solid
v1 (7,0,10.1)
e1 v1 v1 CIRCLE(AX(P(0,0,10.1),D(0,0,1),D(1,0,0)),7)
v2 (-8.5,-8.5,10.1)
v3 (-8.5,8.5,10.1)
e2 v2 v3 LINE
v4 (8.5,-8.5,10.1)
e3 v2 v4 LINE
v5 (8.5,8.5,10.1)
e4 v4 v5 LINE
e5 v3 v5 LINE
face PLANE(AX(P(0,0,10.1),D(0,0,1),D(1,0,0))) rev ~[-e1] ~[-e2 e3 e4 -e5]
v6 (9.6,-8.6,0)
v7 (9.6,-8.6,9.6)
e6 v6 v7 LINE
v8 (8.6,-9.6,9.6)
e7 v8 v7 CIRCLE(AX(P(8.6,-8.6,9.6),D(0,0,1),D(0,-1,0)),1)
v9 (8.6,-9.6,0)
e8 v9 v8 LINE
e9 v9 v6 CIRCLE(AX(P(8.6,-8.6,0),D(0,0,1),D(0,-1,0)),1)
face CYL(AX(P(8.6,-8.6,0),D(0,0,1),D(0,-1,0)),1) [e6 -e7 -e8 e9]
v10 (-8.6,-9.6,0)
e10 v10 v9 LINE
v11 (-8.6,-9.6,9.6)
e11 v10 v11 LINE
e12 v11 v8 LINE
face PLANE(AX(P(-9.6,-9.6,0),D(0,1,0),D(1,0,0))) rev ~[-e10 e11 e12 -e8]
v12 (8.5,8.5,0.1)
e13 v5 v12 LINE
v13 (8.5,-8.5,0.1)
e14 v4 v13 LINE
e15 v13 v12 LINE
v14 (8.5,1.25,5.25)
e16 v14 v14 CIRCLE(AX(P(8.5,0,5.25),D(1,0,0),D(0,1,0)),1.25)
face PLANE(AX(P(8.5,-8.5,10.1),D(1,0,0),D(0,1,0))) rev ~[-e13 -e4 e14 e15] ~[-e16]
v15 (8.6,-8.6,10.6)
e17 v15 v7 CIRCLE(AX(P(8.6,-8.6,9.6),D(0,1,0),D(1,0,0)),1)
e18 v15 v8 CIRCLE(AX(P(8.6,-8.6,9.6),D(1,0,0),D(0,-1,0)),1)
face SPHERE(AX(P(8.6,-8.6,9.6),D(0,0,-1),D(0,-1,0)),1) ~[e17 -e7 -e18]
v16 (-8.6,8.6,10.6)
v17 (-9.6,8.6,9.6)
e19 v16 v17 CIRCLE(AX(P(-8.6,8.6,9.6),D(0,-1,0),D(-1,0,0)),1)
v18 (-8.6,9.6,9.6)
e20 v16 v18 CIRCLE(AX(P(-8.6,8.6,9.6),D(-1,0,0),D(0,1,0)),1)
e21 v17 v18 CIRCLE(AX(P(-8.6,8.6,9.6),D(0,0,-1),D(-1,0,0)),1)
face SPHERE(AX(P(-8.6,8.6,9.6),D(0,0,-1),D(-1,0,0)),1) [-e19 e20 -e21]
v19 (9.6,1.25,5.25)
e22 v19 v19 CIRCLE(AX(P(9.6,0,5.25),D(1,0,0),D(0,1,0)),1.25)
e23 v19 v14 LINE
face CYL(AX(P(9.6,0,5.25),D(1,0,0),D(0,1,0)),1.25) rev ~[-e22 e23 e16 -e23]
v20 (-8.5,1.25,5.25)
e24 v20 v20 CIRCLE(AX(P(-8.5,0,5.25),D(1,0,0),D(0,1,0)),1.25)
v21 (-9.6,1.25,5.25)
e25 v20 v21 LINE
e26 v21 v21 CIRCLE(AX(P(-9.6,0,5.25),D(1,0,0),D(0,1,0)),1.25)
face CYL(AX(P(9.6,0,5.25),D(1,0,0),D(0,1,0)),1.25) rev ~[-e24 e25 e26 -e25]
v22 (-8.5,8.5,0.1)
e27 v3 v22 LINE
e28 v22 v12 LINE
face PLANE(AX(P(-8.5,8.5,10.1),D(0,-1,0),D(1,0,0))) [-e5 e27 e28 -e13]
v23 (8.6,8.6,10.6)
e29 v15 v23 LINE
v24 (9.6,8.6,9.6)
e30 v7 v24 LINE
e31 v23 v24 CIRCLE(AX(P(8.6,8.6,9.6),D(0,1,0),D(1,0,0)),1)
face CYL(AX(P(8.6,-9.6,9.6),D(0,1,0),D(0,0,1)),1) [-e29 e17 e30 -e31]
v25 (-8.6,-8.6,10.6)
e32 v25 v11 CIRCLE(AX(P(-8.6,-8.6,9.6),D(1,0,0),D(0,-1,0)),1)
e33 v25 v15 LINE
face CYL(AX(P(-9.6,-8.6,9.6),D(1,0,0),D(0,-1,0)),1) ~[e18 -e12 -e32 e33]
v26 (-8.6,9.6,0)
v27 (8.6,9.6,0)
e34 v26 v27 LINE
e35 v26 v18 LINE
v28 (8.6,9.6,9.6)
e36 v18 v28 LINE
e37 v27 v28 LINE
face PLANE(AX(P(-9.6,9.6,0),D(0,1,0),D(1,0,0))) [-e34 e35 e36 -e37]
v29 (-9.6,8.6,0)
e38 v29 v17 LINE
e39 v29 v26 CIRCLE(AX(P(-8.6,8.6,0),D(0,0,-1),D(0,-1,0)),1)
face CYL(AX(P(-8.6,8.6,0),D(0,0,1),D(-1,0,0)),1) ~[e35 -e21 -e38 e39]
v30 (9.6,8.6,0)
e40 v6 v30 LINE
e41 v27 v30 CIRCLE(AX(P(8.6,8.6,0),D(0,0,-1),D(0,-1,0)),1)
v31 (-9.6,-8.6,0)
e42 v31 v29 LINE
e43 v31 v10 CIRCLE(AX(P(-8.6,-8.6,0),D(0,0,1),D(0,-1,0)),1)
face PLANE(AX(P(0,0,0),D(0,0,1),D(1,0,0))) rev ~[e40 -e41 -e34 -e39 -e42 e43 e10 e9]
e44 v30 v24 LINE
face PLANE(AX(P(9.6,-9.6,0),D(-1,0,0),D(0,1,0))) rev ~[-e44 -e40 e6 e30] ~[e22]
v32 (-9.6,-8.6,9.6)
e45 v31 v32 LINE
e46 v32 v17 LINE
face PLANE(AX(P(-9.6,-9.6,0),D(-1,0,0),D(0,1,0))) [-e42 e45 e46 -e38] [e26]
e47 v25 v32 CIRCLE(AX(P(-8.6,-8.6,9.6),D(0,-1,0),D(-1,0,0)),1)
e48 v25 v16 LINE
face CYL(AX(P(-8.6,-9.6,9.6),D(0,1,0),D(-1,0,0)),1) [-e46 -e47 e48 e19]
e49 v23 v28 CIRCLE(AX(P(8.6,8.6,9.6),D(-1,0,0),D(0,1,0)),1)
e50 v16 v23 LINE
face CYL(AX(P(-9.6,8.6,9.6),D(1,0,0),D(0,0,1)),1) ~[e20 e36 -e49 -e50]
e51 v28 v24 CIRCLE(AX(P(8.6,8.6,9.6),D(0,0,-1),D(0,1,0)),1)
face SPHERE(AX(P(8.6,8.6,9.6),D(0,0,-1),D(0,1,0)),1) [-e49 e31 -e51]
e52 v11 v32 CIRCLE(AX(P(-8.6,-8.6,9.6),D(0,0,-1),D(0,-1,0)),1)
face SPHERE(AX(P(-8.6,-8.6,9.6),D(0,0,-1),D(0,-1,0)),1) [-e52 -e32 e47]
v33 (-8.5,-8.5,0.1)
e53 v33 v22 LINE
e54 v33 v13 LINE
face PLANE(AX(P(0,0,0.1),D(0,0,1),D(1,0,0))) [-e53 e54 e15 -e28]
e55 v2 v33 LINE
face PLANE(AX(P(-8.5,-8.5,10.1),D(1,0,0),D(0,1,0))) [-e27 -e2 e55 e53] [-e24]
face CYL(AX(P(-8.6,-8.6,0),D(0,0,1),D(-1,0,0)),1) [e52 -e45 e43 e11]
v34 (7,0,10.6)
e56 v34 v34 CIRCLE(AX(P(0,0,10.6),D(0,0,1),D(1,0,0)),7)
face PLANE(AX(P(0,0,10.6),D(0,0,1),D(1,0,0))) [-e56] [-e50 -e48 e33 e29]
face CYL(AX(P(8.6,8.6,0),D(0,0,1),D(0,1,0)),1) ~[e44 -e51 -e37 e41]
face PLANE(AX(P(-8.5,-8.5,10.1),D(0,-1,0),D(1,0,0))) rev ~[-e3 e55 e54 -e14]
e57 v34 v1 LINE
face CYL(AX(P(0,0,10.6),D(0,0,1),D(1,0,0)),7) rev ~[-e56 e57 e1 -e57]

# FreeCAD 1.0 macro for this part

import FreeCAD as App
import Part
import Sketcher

V = App.Vector
Q = App.Units.Quantity


def edges_at(feature, points):
    """Names of the edges that pass closest to the given points."""
    edges = feature.Shape.Edges
    near = lambda p: min(range(len(edges)), key=lambda i: edges[i].distToShape(Part.Vertex(*p))[0])
    return sorted({f"Edge{near(p) + 1}" for p in points})


def add_polygon(sketch, points):
    """Adds a closed chain of lines whose ends are joined by coincident constraints."""
    first, n = sketch.GeometryCount, len(points)
    for a, b in zip(points, points[1:] + points[:1]):
        sketch.addGeometry(Part.LineSegment(App.Vector(*a, 0), App.Vector(*b, 0)), False)
    for i in range(n):
        sketch.addConstraint(Sketcher.Constraint("Coincident", first + i, 2, first + (i + 1) % n, 1))

doc = App.newDocument("Part")
body = doc.addObject("PartDesign::Body", "Body")

sketch1 = body.newObject("Sketcher::SketchObject", "Sketch")
sketch1.AttachmentSupport = (doc.getObject("XY_Plane"), [""])
sketch1.MapMode = "FlatFace"
add_polygon(sketch1, [(-10, 10), (-10, -10), (10, -10), (10, 10)])
sketch1.addConstraint(Sketcher.Constraint("Vertical", 0))
sketch1.addConstraint(Sketcher.Constraint("Horizontal", 1))
sketch1.addConstraint(Sketcher.Constraint("Vertical", 2))
sketch1.addConstraint(Sketcher.Constraint("Horizontal", 3))
sketch1.addConstraint(Sketcher.Constraint("Symmetric", 0, 2, 2, 2, -1, 1))
sketch1.addConstraint(Sketcher.Constraint("Equal", 3, 0))
sketch1.addConstraint(Sketcher.Constraint("DistanceX", 1, 1, 1, 2, Q("19.2 mm")))
pad1 = body.newObject("PartDesign::Pad", "Pad")
pad1.Profile = sketch1
pad1.Length = 10.6

sketch2 = body.newObject("Sketcher::SketchObject", "Sketch001")
sketch2.AttachmentSupport = (doc.getObject("YZ_Plane"), [""])
sketch2.MapMode = "FlatFace"
sketch2.AttachmentOffset = App.Placement(V(0, 0, 9.6), App.Rotation())
sketch2.addGeometry(Part.Circle(V(0, 5.2, 0), V(0, 0, 1), 1.2), False)
sketch2.addConstraint(Sketcher.Constraint("PointOnObject", 0, 3, -2))
sketch2.addConstraint(Sketcher.Constraint("Diameter", 0, Q("2.5 mm")))
sketch2.addConstraint(Sketcher.Constraint("DistanceY", -1, 1, 0, 3, Q("5.25 mm")))
pocket1 = body.newObject("PartDesign::Pocket", "Pocket")
pocket1.Profile = sketch2
pocket1.Type = "ThroughAll"

sketch3 = body.newObject("Sketcher::SketchObject", "Sketch002")
sketch3.AttachmentSupport = (doc.getObject("XY_Plane"), [""])
sketch3.MapMode = "FlatFace"
sketch3.AttachmentOffset = App.Placement(V(0, 0, 10.6), App.Rotation())
sketch3.addGeometry(Part.Circle(V(0, 0, 0), V(0, 0, 1), 7), False)
sketch3.addConstraint(Sketcher.Constraint("Coincident", 0, 3, -1, 1))
sketch3.addConstraint(Sketcher.Constraint("Diameter", 0, Q("14 mm")))
pocket2 = body.newObject("PartDesign::Pocket", "Pocket001")
pocket2.Profile = sketch3
pocket2.Length = 0.5

sketch4 = body.newObject("Sketcher::SketchObject", "Sketch003")
sketch4.AttachmentSupport = (doc.getObject("XY_Plane"), [""])
sketch4.MapMode = "FlatFace"
sketch4.AttachmentOffset = App.Placement(V(0, 0, 10.1), App.Rotation())
add_polygon(sketch4, [(-8, 8), (-8, -8), (8, -8), (8, 8)])
sketch4.addConstraint(Sketcher.Constraint("Vertical", 0))
sketch4.addConstraint(Sketcher.Constraint("Horizontal", 1))
sketch4.addConstraint(Sketcher.Constraint("Vertical", 2))
sketch4.addConstraint(Sketcher.Constraint("Horizontal", 3))
sketch4.addConstraint(Sketcher.Constraint("Symmetric", 0, 2, 2, 2, -1, 1))
sketch4.addConstraint(Sketcher.Constraint("Equal", 3, 0))
sketch4.addConstraint(Sketcher.Constraint("DistanceX", 1, 1, 1, 2, Q("17 mm")))
pocket3 = body.newObject("PartDesign::Pocket", "Pocket002")
pocket3.Profile = sketch4
pocket3.Length = 10
doc.recompute()

fillet = body.newObject("PartDesign::Fillet", "Fillet")
fillet.Base = (pocket3, edges_at(pocket3, [
    (9.6, -9.6, 5.3),
    (-9.6, -9.6, 5.3),
    (9.6, 9.6, 5.3),
    (-9.6, 9.6, 5.3),
    (0, -9.6, 10.6),
    (-9.6, 0, 10.6),
    (0, 9.6, 10.6),
    (9.6, 0, 10.6),
]))
fillet.Radius = 1

doc.recompute()
